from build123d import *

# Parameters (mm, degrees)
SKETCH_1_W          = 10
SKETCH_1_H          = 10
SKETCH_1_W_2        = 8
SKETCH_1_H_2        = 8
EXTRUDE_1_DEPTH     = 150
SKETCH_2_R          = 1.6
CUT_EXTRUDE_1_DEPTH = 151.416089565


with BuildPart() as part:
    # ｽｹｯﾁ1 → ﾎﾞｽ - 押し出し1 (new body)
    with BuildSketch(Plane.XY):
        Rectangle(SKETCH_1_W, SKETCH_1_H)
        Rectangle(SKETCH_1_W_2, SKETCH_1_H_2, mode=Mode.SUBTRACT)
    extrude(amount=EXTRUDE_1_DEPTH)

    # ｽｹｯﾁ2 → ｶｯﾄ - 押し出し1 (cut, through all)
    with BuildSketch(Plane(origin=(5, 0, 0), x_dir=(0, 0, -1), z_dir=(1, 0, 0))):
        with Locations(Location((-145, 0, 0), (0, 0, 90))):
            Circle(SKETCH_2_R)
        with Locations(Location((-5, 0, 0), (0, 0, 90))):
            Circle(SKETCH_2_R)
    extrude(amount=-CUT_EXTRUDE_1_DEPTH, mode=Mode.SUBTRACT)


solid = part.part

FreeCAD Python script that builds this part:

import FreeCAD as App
import Part
import Sketcher


def add_polygon(sketch, points):
    """Adds a closed chain of lines whose ends are joined by coincident constraints."""
    first, n = sketch.GeometryCount, len(points)
    for a, b in zip(points, points[1:] + points[:1]):
        sketch.addGeometry(Part.LineSegment(App.Vector(*a, 0), App.Vector(*b, 0)), False)
    for i in range(n):
        sketch.addConstraint(Sketcher.Constraint("Coincident", first + i, 2, first + (i + 1) % n, 1))

doc = App.newDocument("Part")
params = doc.addObject("Spreadsheet::Sheet", "Params")
for row, (alias, value) in enumerate([
    ("sketch1_width", "10 mm"),
    ("sketch1_width2", "8 mm"),
    ("pad1_length", "150 mm"),
    ("sketch2_diameter", "3.2 mm"),
], start=1):
    params.set(f"A{row}", alias)
    params.set(f"B{row}", "=" + value)
    params.setAlias(f"B{row}", alias)

body = doc.addObject("PartDesign::Body", "Body")

# Sketch on XY plane
sketch1 = doc.addObject("Sketcher::SketchObject", "Sketch")
body.addObject(sketch1)
sketch1.AttachmentSupport = (doc.XY_Plane, [""])
sketch1.MapMode = "FlatFace"
add_polygon(sketch1, [(-5, 5), (-5, -5), (5, -5), (5, 5)])  # lines 0-3
add_polygon(sketch1, [(4, -4), (-4, -4), (-4, 4), (4, 4)])  # lines 4-7
sketch1.addConstraint([
    Sketcher.Constraint("Vertical", 0),
    Sketcher.Constraint("Horizontal", 1),
    Sketcher.Constraint("Vertical", 2),
    Sketcher.Constraint("Horizontal", 3),
    Sketcher.Constraint("Horizontal", 4),
    Sketcher.Constraint("Vertical", 5),
    Sketcher.Constraint("Horizontal", 6),
    Sketcher.Constraint("Vertical", 7),
    Sketcher.Constraint("Symmetric", 0, 2, 2, 2, -1, 1),
    Sketcher.Constraint("Symmetric", 4, 2, 6, 2, -1, 1),
    Sketcher.Constraint("Equal", 3, 0),
    Sketcher.Constraint("Equal", 6, 5),
    Sketcher.Constraint("DistanceX", 1, 1, 1, 2, 10.0),
    Sketcher.Constraint("DistanceX", 4, 2, 4, 1, 8.0),
])
sketch1.setExpression("Constraints[20]", "Params.sketch1_width")
sketch1.setExpression("Constraints[21]", "Params.sketch1_width2")
pad1 = doc.addObject("PartDesign::Pad", "Pad")
body.addObject(pad1)
pad1.Profile = sketch1
pad1.setExpression("Length", "Params.pad1_length")

# Sketch on YZ plane
sketch2 = doc.addObject("Sketcher::SketchObject", "Sketch001")
body.addObject(sketch2)
sketch2.AttachmentSupport = (doc.YZ_Plane, [""])
sketch2.MapMode = "FlatFace"
sketch2.AttachmentOffset = App.Placement(App.Vector(0, 0, 5), App.Rotation())
sketch2.addGeometry([
    Part.Circle(App.Vector(0, 145, 0), App.Vector(0, 0, 1), 1.6),
    Part.Circle(App.Vector(0, 5, 0), App.Vector(0, 0, 1), 1.6),
], False)
sketch2.addConstraint([
    Sketcher.Constraint("Equal", 0, 1),
    Sketcher.Constraint("PointOnObject", 0, 3, -2),
    Sketcher.Constraint("PointOnObject", 1, 3, -2),
    Sketcher.Constraint("Diameter", 0, 3.2),
    Sketcher.Constraint("DistanceY", -1, 1, 0, 3, 145.0),
    Sketcher.Constraint("DistanceY", -1, 1, 1, 3, 5.0),
])
sketch2.setExpression("Constraints[3]", "Params.sketch2_diameter")
pocket1 = doc.addObject("PartDesign::Pocket", "Pocket")
body.addObject(pocket1)
pocket1.Profile = sketch2
pocket1.Type = "ThroughAll"

doc.recompute()
